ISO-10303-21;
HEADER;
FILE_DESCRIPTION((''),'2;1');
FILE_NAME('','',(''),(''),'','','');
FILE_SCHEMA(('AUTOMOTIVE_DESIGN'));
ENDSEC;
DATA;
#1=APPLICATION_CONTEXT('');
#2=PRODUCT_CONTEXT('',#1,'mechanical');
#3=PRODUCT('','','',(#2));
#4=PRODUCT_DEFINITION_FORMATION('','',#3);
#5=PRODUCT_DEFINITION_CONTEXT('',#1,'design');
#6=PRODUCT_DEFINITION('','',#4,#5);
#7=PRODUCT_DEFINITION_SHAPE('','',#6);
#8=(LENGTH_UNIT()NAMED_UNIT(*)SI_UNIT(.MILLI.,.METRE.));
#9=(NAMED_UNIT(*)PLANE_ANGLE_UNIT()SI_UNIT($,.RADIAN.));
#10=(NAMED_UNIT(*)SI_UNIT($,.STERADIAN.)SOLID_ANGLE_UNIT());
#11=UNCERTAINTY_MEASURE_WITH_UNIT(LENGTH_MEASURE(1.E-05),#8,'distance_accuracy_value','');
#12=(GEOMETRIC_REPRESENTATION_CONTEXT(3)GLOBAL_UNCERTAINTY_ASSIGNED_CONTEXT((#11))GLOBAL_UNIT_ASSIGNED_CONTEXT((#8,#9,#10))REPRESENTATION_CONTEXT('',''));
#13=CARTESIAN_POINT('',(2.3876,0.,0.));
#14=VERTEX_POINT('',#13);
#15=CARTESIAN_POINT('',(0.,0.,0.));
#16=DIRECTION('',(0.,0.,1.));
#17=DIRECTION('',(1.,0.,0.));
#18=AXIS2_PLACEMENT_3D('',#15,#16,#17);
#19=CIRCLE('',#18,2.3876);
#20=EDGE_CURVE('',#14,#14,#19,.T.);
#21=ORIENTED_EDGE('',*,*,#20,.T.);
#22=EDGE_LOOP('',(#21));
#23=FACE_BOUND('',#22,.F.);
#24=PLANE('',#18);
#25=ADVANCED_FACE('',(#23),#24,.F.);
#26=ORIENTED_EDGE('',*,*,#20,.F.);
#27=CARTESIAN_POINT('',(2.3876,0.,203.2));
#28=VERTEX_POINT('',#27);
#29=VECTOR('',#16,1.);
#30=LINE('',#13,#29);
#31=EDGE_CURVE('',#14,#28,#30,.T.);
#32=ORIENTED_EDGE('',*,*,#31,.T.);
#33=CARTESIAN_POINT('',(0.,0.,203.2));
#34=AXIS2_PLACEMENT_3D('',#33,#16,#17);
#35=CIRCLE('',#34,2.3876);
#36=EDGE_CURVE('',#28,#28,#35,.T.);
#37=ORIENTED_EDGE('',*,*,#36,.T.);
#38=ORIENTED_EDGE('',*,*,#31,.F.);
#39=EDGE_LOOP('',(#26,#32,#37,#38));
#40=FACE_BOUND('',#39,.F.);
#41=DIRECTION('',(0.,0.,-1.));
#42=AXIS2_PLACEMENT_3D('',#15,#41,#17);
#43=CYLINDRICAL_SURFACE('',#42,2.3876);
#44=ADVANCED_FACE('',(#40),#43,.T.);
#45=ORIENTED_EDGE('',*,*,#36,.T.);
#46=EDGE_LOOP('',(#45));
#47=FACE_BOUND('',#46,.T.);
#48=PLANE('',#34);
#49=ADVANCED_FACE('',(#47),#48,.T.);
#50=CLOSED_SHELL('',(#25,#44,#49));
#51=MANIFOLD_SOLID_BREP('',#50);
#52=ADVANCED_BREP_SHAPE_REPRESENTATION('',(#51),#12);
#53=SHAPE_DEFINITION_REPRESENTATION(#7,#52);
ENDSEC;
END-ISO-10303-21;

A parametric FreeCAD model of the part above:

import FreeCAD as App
import Part
import Sketcher
Q = App.Units.Quantity

doc = App.newDocument("Part")
body = doc.addObject("PartDesign::Body", "Body")

# Sketch on XY plane
sketch1 = body.newObject("Sketcher::SketchObject", "Sketch")
sketch1.AttachmentSupport = (doc.getObject("XY_Plane"), [""])
sketch1.MapMode = "FlatFace"
sketch1.addGeometry(Part.Circle(App.Vector(0, 0, 0), App.Vector(0, 0, 1), 2.4), False)
sketch1.addConstraint([
    Sketcher.Constraint("Coincident", 0, 3, -1, 1),
    Sketcher.Constraint("Diameter", 0, Q("0.188 in")),
])
pad1 = body.newObject("PartDesign::Pad", "Pad")
pad1.Profile = sketch1
pad1.Length = Q("8 in")

doc.recompute()
